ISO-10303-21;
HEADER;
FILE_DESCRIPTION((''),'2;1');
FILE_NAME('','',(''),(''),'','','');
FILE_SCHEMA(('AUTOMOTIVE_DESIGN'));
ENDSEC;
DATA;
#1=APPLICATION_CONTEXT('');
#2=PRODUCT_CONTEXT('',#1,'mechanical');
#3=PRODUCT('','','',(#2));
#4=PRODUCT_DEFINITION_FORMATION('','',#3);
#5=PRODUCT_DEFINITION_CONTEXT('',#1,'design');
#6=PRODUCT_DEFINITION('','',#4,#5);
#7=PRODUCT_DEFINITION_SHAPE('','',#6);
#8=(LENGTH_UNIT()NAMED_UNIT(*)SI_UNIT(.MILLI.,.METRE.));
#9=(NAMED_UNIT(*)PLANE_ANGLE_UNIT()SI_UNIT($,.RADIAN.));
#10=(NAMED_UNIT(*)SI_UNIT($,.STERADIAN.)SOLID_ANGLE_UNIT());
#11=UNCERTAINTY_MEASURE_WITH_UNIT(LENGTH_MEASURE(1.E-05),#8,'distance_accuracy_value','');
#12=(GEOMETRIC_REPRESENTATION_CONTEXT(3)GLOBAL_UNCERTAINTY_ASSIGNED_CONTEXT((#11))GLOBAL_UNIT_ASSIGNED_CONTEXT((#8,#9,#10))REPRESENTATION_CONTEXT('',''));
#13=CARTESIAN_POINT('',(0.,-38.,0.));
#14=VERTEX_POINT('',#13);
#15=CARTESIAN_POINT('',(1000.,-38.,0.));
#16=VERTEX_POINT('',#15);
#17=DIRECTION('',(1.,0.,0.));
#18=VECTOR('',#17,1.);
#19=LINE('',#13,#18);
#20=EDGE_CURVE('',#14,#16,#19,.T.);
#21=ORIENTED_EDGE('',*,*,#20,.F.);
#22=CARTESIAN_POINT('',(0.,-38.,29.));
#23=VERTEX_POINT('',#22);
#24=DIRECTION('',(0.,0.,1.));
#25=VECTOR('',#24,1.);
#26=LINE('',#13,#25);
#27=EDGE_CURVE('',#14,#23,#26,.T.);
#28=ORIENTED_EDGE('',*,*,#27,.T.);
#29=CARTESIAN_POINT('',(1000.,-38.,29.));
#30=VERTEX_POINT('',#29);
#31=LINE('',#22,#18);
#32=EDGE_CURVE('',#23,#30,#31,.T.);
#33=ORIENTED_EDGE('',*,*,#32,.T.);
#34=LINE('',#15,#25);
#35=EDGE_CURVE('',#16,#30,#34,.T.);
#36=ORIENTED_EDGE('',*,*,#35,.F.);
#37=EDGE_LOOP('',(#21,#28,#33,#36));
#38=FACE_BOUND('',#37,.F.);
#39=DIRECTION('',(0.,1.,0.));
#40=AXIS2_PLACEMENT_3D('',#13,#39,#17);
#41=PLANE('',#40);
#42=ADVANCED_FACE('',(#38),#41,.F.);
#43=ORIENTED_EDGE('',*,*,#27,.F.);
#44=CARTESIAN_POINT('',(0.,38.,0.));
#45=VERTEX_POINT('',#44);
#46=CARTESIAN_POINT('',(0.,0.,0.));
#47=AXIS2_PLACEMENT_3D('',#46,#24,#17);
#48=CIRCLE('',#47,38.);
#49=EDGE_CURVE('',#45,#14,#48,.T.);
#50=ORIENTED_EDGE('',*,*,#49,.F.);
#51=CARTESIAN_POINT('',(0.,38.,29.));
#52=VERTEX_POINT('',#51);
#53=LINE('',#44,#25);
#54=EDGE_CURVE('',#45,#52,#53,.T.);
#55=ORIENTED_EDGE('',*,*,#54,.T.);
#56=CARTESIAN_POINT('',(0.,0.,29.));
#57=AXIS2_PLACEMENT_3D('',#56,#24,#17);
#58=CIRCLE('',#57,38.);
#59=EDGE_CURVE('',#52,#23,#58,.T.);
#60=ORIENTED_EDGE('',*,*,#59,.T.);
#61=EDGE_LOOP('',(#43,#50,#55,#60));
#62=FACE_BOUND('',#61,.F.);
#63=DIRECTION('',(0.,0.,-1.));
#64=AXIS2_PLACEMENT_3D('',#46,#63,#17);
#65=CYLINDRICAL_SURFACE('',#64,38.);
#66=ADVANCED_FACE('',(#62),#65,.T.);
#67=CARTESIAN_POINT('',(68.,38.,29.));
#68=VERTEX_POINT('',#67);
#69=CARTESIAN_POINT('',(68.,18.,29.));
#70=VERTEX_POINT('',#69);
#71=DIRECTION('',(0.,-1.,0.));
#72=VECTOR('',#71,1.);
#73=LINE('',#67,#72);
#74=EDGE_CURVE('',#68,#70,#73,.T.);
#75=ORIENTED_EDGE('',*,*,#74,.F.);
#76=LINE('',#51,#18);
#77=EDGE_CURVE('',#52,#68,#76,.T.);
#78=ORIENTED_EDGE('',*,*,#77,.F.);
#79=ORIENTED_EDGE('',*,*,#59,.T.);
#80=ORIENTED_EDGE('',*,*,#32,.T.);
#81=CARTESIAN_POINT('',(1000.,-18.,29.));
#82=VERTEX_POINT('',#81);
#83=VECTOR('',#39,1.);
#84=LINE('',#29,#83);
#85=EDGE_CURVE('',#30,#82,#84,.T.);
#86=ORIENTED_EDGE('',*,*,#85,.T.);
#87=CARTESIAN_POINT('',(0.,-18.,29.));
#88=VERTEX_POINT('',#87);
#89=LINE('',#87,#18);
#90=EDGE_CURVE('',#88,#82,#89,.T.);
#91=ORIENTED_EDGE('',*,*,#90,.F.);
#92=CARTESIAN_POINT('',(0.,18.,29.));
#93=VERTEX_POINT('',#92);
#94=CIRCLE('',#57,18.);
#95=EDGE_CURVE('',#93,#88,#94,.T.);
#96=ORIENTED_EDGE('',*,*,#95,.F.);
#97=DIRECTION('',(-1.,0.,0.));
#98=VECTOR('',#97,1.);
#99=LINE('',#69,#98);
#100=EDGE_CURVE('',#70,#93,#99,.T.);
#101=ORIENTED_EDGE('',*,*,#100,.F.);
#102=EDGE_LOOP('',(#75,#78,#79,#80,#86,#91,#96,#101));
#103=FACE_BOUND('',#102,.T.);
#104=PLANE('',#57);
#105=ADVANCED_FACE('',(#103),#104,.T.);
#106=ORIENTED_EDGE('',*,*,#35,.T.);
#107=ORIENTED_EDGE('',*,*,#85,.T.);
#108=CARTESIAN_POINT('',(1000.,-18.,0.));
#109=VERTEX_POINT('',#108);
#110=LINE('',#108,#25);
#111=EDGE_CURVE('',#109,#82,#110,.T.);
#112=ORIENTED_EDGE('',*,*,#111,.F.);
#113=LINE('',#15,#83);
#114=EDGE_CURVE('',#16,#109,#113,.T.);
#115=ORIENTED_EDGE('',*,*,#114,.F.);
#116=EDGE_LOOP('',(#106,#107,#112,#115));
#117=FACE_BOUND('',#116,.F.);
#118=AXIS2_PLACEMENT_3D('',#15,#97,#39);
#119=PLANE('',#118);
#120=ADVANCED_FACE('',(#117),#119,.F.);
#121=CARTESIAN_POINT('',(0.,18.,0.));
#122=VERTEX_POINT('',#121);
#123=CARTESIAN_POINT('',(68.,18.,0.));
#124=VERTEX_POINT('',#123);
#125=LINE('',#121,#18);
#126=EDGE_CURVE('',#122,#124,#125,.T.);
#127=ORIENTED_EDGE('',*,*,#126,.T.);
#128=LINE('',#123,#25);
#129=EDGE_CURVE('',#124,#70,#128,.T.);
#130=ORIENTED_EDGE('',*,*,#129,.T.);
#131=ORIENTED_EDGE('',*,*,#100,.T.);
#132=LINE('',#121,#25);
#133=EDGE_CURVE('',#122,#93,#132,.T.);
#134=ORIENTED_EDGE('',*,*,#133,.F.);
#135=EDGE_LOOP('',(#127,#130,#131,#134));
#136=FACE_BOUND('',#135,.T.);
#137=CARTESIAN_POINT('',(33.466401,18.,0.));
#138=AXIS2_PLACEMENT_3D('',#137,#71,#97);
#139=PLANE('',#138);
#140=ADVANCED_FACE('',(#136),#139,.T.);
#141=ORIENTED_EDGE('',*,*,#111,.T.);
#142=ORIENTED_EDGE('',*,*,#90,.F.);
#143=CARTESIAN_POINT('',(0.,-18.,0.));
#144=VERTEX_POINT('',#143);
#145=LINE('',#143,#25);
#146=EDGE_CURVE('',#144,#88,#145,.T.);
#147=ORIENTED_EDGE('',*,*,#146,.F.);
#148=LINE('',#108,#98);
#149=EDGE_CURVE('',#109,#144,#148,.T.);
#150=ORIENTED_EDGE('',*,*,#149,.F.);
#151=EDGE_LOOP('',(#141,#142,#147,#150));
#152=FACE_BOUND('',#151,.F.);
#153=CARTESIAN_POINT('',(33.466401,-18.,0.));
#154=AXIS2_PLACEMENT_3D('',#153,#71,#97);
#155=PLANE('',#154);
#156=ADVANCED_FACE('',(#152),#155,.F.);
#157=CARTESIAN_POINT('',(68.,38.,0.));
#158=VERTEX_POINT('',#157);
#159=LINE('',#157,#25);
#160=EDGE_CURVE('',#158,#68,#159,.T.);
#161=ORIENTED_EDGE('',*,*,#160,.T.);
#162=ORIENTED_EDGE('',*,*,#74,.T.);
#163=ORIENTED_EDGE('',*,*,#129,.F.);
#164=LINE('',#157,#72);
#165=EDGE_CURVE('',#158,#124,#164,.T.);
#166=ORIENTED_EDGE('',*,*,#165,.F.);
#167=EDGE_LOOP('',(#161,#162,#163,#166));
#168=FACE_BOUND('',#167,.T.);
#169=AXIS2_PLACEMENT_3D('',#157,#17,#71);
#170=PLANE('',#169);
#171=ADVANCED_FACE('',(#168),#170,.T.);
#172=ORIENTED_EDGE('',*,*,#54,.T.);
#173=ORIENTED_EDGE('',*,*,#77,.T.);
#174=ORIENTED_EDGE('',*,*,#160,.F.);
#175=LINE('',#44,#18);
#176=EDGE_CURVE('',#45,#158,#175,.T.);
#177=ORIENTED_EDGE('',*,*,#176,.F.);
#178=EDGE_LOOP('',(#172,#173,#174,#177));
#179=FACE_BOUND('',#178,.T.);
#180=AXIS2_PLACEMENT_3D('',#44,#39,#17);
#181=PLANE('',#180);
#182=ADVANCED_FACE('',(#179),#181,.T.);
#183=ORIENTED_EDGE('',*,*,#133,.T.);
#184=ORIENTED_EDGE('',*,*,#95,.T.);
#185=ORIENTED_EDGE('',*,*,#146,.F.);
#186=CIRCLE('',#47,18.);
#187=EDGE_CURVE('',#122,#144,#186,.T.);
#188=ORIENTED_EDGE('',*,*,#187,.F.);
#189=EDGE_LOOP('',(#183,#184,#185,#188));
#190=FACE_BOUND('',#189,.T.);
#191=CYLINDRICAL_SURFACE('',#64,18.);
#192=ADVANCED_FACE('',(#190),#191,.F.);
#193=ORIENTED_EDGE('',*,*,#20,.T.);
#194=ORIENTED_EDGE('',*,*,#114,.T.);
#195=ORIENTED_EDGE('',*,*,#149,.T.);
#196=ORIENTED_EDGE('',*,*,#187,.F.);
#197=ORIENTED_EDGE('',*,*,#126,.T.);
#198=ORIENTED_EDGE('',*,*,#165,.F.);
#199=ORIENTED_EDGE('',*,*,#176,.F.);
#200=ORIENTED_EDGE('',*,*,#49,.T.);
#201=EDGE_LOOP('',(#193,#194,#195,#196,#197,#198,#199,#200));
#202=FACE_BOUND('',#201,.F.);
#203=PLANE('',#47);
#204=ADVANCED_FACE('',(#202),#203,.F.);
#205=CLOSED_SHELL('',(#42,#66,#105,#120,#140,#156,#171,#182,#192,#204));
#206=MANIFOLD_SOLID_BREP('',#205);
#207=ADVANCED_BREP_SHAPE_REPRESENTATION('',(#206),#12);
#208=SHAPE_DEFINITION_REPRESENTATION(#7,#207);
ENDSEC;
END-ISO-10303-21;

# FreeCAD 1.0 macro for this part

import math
import FreeCAD as App
import Part
import Sketcher

V = App.Vector
Q = App.Units.Quantity

doc = App.newDocument("Part")
body = doc.addObject("PartDesign::Body", "Body")

# Sketch on XY plane
sketch1 = body.newObject("Sketcher::SketchObject", "Sketch")
sketch1.AttachmentSupport = (doc.getObject("XY_Plane"), [""])
sketch1.MapMode = "FlatFace"
sketch1.addGeometry(Part.ArcOfCircle(Part.Circle(V(0, 0, 0), V(0, 0, 1), 18), math.radians(90), math.radians(270)), False)
sketch1.addGeometry(Part.LineSegment(V(0, 18, 0), V(68, 18, 0)), False)
sketch1.addGeometry(Part.LineSegment(V(68, 18, 0), V(68, 38, 0)), False)
sketch1.addGeometry(Part.LineSegment(V(68, 38, 0), V(0, 38, 0)), False)
sketch1.addGeometry(Part.ArcOfCircle(Part.Circle(V(0, 0, 0), V(0, 0, 1), 38), math.radians(90), math.radians(270)), False)
sketch1.addGeometry(Part.LineSegment(V(0, -38, 0), V(1000, -38, 0)), False)
sketch1.addGeometry(Part.LineSegment(V(1000, -38, 0), V(1000, -18, 0)), False)
sketch1.addGeometry(Part.LineSegment(V(1000, -18, 0), V(0, -18, 0)), False)
sketch1.addConstraint(Sketcher.Constraint("Tangent", 0, 1, 1, 1))
sketch1.addConstraint(Sketcher.Constraint("Coincident", 1, 2, 2, 1))
sketch1.addConstraint(Sketcher.Constraint("Coincident", 2, 2, 3, 1))
sketch1.addConstraint(Sketcher.Constraint("Tangent", 3, 2, 4, 1))
sketch1.addConstraint(Sketcher.Constraint("Tangent", 4, 2, 5, 1))
sketch1.addConstraint(Sketcher.Constraint("Coincident", 5, 2, 6, 1))
sketch1.addConstraint(Sketcher.Constraint("Coincident", 6, 2, 7, 1))
sketch1.addConstraint(Sketcher.Constraint("Tangent", 7, 2, 0, 2))
sketch1.addConstraint(Sketcher.Constraint("Horizontal", 1))
sketch1.addConstraint(Sketcher.Constraint("Vertical", 2))
sketch1.addConstraint(Sketcher.Constraint("Horizontal", 3))
sketch1.addConstraint(Sketcher.Constraint("Horizontal", 5))
sketch1.addConstraint(Sketcher.Constraint("Vertical", 6))
sketch1.addConstraint(Sketcher.Constraint("Horizontal", 7))
sketch1.addConstraint(Sketcher.Constraint("Coincident", 0, 3, -1, 1))
sketch1.addConstraint(Sketcher.Constraint("Coincident", 4, 3, -1, 1))
sketch1.addConstraint(Sketcher.Constraint("Radius", 4, Q("38 mm")))
sketch1.addConstraint(Sketcher.Constraint("DistanceX", 1, 1, 1, 2, Q("68 mm")))
sketch1.addConstraint(Sketcher.Constraint("DistanceX", 5, 1, 5, 2, Q("1000 mm")))
sketch1.addConstraint(Sketcher.Constraint("DistanceY", 2, 1, 2, 2, Q("20 mm")))
pad1 = body.newObject("PartDesign::Pad", "Pad")
pad1.Profile = sketch1
pad1.Length = 29

doc.recompute()
